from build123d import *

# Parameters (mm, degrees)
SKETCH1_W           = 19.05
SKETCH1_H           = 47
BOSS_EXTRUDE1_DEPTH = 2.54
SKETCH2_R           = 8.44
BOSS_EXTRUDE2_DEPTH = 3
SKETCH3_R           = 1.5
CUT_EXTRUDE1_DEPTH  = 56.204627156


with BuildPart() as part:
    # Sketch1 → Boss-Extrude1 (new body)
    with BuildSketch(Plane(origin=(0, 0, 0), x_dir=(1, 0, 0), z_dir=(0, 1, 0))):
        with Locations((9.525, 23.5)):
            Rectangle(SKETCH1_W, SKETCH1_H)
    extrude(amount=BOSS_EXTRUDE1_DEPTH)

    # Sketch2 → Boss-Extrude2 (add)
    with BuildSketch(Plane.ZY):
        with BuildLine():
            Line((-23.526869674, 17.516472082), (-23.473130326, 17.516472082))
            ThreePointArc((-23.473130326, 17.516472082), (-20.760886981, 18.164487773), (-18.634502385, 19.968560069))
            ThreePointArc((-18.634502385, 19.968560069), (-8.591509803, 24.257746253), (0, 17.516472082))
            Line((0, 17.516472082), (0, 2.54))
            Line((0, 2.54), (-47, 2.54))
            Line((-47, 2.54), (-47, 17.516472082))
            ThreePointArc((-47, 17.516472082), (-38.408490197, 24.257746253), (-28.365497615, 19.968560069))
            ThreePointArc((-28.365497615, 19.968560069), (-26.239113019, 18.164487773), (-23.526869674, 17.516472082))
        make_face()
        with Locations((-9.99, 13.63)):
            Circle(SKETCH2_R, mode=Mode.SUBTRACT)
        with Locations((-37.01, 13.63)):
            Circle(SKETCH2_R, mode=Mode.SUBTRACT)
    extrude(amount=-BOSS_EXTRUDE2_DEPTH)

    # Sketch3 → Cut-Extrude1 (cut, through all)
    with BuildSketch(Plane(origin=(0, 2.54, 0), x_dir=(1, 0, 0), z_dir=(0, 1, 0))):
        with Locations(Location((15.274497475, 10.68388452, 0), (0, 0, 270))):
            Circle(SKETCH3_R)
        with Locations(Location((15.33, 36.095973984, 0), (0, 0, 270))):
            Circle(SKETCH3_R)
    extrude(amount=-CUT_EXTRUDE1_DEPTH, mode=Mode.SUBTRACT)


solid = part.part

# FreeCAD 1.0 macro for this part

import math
import FreeCAD as App
import Part
import Sketcher

V = App.Vector
Q = App.Units.Quantity

doc = App.newDocument("Part")
body = doc.addObject("PartDesign::Body", "Body")

sketch1 = body.newObject("Sketcher::SketchObject", "Sketch")
sketch1.AttachmentSupport = (doc.getObject("XZ_Plane"), [""])
sketch1.MapMode = "FlatFace"
sketch1.addGeometry([
    Part.LineSegment(V(0, -47, 0), V(0, 0, 0)),
    Part.LineSegment(V(0, 0, 0), V(19, 0, 0)),
    Part.LineSegment(V(19, 0, 0), V(19, -47, 0)),
    Part.LineSegment(V(19, -47, 0), V(0, -47, 0)),
], False)
sketch1.addConstraint([
    Sketcher.Constraint("Coincident", 0, 2, 1, 1),
    Sketcher.Constraint("Coincident", 1, 2, 2, 1),
    Sketcher.Constraint("Coincident", 2, 2, 3, 1),
    Sketcher.Constraint("Coincident", 3, 2, 0, 1),
    Sketcher.Constraint("Vertical", 0),
    Sketcher.Constraint("Horizontal", 1),
    Sketcher.Constraint("Vertical", 2),
    Sketcher.Constraint("Horizontal", 3),
    Sketcher.Constraint("Coincident", 0, 2, -1, 1),
    Sketcher.Constraint("DistanceY", 0, 1, 0, 2, Q("47 mm")),
    Sketcher.Constraint("DistanceX", 1, 1, 1, 2, Q("19.05 mm")),
])
pad1 = body.newObject("PartDesign::Pad", "Pad")
pad1.Profile = sketch1
pad1.Length = 2.54
pad1.Reversed = True

sketch2 = body.newObject("Sketcher::SketchObject", "Sketch001")
sketch2.AttachmentSupport = (doc.getObject("YZ_Plane"), [""])
sketch2.MapMode = "FlatFace"
sketch2.addGeometry([
    Part.LineSegment(V(17.52, -23.47, 0), V(17.52, -23.53, 0)),
    Part.ArcOfCircle(Part.Circle(V(23.52, -23.53, 0), V(0, 0, 1), 6), math.radians(180), math.radians(234)),
    Part.ArcOfCircle(Part.Circle(V(13.63, -37.01, 0), V(0, 0, 1), 10.72), math.radians(-69), math.radians(54)),
    Part.LineSegment(V(17.52, -47, 0), V(2.54, -47, 0)),
    Part.LineSegment(V(2.54, -47, 0), V(2.54, 0, 0)),
    Part.LineSegment(V(2.54, 0, 0), V(17.52, 0, 0)),
    Part.ArcOfCircle(Part.Circle(V(13.63, -9.99, 0), V(0, 0, 1), 10.72), math.radians(-54), math.radians(69)),
    Part.ArcOfCircle(Part.Circle(V(23.52, -23.47, 0), V(0, 0, 1), 6), math.radians(126), math.radians(180)),
    Part.Circle(V(13.63, -9.99, 0), V(0, 0, 1), 8.44),
    Part.Circle(V(13.63, -37.01, 0), V(0, 0, 1), 8.44),
], False)
sketch2.addConstraint([
    Sketcher.Constraint("Tangent", 0, 2, 1, 1),
    Sketcher.Constraint("Tangent", 1, 2, 2, 2),
    Sketcher.Constraint("Coincident", 2, 1, 3, 1),
    Sketcher.Constraint("Coincident", 3, 2, 4, 1),
    Sketcher.Constraint("Coincident", 4, 2, 5, 1),
    Sketcher.Constraint("Coincident", 5, 2, 6, 2),
    Sketcher.Constraint("Tangent", 6, 1, 7, 1),
    Sketcher.Constraint("Tangent", 7, 2, 0, 1),
    Sketcher.Constraint("Vertical", 0),
    Sketcher.Constraint("Horizontal", 3),
    Sketcher.Constraint("Vertical", 4),
    Sketcher.Constraint("Horizontal", 5),
    Sketcher.Constraint("Coincident", 8, 3, 6, 3),
    Sketcher.Constraint("Coincident", 9, 3, 2, 3),
    Sketcher.Constraint("Equal", 2, 6),
    Sketcher.Constraint("Equal", 1, 7),
    Sketcher.Constraint("Equal", 8, 9),
    Sketcher.Constraint("PointOnObject", 4, 2, -1),
    Sketcher.Constraint("Vertical", 2, 3, 6, 3),
    Sketcher.Constraint("Vertical", 0, 2, 2, 1),
    Sketcher.Constraint("Vertical", 2, 1, 5, 2),
    Sketcher.Constraint("Radius", 1, Q("6 mm")),
    Sketcher.Constraint("Diameter", 8, Q("16.88 mm")),
    Sketcher.Constraint("DistanceY", 4, 1, 4, 2, Q("47 mm")),
    Sketcher.Constraint("DistanceX", -1, 1, 2, 3, Q("13.63 mm")),
    Sketcher.Constraint("DistanceY", 2, 3, -1, 1, Q("37.01 mm")),
    Sketcher.Constraint("DistanceX", -1, 1, 3, 2, Q("2.54 mm")),
    Sketcher.Constraint("Radius", 2, Q("10.719364 mm")),
])
pad2 = body.newObject("PartDesign::Pad", "Pad001")
pad2.Profile = sketch2
pad2.Length = 3

sketch3 = body.newObject("Sketcher::SketchObject", "Sketch002")
sketch3.AttachmentSupport = (doc.getObject("XZ_Plane"), [""])
sketch3.MapMode = "FlatFace"
sketch3.AttachmentOffset = App.Placement(V(0, 0, -2.54), App.Rotation())
sketch3.addGeometry([
    Part.Circle(V(15.3, -10.7, 0), V(0, 0, 1), 1.5),
    Part.Circle(V(15.3, -36.1, 0), V(0, 0, 1), 1.5),
], False)
sketch3.addConstraint([
    Sketcher.Constraint("Equal", 0, 1),
    Sketcher.Constraint("Diameter", 0, Q("3 mm")),
    Sketcher.Constraint("DistanceX", -1, 1, 1, 3, Q("15.33 mm")),
    Sketcher.Constraint("DistanceY", 1, 3, 0, 3, Q("25.412089 mm")),
    Sketcher.Constraint("DistanceX", -1, 1, 0, 3, Q("15.274497 mm")),
    Sketcher.Constraint("DistanceY", 0, 3, -1, 1, Q("10.683885 mm")),
])
pocket1 = body.newObject("PartDesign::Pocket", "Pocket")
pocket1.Profile = sketch3
pocket1.Type = "ThroughAll"
pocket1.Reversed = True

doc.recompute()
